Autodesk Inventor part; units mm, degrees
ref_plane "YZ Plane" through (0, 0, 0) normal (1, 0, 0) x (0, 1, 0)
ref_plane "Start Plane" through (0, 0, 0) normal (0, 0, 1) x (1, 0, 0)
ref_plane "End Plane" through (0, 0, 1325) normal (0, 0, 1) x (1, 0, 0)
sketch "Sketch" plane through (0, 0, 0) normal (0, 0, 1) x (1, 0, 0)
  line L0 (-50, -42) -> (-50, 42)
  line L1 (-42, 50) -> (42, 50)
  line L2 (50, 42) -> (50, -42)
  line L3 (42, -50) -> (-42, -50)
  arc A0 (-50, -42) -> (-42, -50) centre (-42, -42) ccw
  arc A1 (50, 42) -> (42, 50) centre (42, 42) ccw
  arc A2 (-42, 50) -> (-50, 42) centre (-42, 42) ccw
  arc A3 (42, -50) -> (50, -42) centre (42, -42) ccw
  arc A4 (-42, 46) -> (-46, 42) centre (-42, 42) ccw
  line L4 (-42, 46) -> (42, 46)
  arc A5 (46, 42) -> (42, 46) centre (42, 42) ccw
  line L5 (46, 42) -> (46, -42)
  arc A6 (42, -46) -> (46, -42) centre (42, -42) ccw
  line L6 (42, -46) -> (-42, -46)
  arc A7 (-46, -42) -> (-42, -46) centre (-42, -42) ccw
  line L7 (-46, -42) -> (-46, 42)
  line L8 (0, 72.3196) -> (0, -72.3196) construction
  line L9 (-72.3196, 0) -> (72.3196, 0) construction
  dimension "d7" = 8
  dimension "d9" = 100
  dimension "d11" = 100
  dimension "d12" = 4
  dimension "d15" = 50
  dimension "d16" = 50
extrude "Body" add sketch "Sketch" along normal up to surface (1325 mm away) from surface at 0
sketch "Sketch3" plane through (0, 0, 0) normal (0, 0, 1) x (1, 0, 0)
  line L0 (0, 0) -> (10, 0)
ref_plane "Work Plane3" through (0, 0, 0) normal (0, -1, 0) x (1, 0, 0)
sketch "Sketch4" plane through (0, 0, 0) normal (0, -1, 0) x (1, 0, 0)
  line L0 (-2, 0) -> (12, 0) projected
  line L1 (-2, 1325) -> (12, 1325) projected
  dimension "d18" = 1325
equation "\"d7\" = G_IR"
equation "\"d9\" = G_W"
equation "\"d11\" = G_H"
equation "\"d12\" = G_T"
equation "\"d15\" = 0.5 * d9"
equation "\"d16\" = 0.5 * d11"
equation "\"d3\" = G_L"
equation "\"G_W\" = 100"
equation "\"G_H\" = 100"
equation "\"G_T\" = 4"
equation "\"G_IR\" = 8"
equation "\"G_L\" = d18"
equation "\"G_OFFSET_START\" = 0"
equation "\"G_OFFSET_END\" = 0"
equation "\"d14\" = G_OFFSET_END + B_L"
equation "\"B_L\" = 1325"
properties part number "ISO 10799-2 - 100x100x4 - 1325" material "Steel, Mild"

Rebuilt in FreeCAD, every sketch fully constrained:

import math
import FreeCAD as App
import Part
import Sketcher
from FreeCAD import Vector
Q = App.Units.Quantity

doc = App.newDocument("Part")
body = doc.addObject("PartDesign::Body", "Body")

# Sketch on XY plane
sketch1 = doc.addObject("Sketcher::SketchObject", "Sketch")
body.addObject(sketch1)
sketch1.AttachmentSupport = (doc.XY_Plane, [""])
sketch1.MapMode = "FlatFace"
sketch1.addGeometry([
    Part.LineSegment(Vector(-50, 42, 0), Vector(-50, -42, 0)),  # 0
    Part.ArcOfCircle(Part.Circle(Vector(-42, -42, 0), Vector(0, 0, 1), 8), math.radians(180), math.radians(270)),  # 1
    Part.LineSegment(Vector(-42, -50, 0), Vector(42, -50, 0)),  # 2
    Part.ArcOfCircle(Part.Circle(Vector(42, -42, 0), Vector(0, 0, 1), 8), math.radians(-90), math.radians(0)),  # 3
    Part.LineSegment(Vector(50, -42, 0), Vector(50, 42, 0)),  # 4
    Part.ArcOfCircle(Part.Circle(Vector(42, 42, 0), Vector(0, 0, 1), 8), math.radians(0), math.radians(90)),  # 5
    Part.LineSegment(Vector(42, 50, 0), Vector(-42, 50, 0)),  # 6
    Part.ArcOfCircle(Part.Circle(Vector(-42, 42, 0), Vector(0, 0, 1), 8), math.radians(90), math.radians(180)),  # 7
    Part.ArcOfCircle(Part.Circle(Vector(-42, 42, 0), Vector(0, 0, 1), 4), math.radians(90), math.radians(180)),  # 8
    Part.LineSegment(Vector(-42, 46, 0), Vector(42, 46, 0)),  # 9
    Part.ArcOfCircle(Part.Circle(Vector(42, 42, 0), Vector(0, 0, 1), 4), math.radians(0), math.radians(90)),  # 10
    Part.LineSegment(Vector(46, 42, 0), Vector(46, -42, 0)),  # 11
    Part.ArcOfCircle(Part.Circle(Vector(42, -42, 0), Vector(0, 0, 1), 4), math.radians(-90), math.radians(0)),  # 12
    Part.LineSegment(Vector(42, -46, 0), Vector(-42, -46, 0)),  # 13
    Part.ArcOfCircle(Part.Circle(Vector(-42, -42, 0), Vector(0, 0, 1), 4), math.radians(180), math.radians(270)),  # 14
    Part.LineSegment(Vector(-46, -42, 0), Vector(-46, 42, 0)),  # 15
], False)
sketch1.addConstraint([
    Sketcher.Constraint("Tangent", 0, 2, 1, 1),
    Sketcher.Constraint("Tangent", 1, 2, 2, 1),
    Sketcher.Constraint("Tangent", 2, 2, 3, 1),
    Sketcher.Constraint("Tangent", 3, 2, 4, 1),
    Sketcher.Constraint("Tangent", 4, 2, 5, 1),
    Sketcher.Constraint("Tangent", 5, 2, 6, 1),
    Sketcher.Constraint("Tangent", 6, 2, 7, 1),
    Sketcher.Constraint("Tangent", 7, 2, 0, 1),
    Sketcher.Constraint("Tangent", 8, 1, 9, 1),
    Sketcher.Constraint("Tangent", 9, 2, 10, 2),
    Sketcher.Constraint("Tangent", 10, 1, 11, 1),
    Sketcher.Constraint("Tangent", 11, 2, 12, 2),
    Sketcher.Constraint("Tangent", 12, 1, 13, 1),
    Sketcher.Constraint("Tangent", 13, 2, 14, 2),
    Sketcher.Constraint("Tangent", 14, 1, 15, 1),
    Sketcher.Constraint("Tangent", 15, 2, 8, 2),
    Sketcher.Constraint("Vertical", 0),
    Sketcher.Constraint("Horizontal", 2),
    Sketcher.Constraint("Vertical", 4),
    Sketcher.Constraint("Horizontal", 6),
    Sketcher.Constraint("Horizontal", 9),
    Sketcher.Constraint("Vertical", 11),
    Sketcher.Constraint("Horizontal", 13),
    Sketcher.Constraint("Vertical", 15),
    Sketcher.Constraint("Coincident", 8, 3, 7, 3),
    Sketcher.Constraint("Coincident", 10, 3, 5, 3),
    Sketcher.Constraint("Coincident", 12, 3, 3, 3),
    Sketcher.Constraint("Equal", 1, 3),
    Sketcher.Constraint("Equal", 3, 5),
    Sketcher.Constraint("Equal", 5, 7),
    Sketcher.Constraint("Equal", 12, 14),
    Sketcher.Constraint("Symmetric", 1, 3, 5, 3, -1, 1),
    Sketcher.Constraint("Equal", 13, 0),
    Sketcher.Constraint("Radius", 1, Q("8 mm")),
    Sketcher.Constraint("Radius", 8, Q("4 mm")),
    Sketcher.Constraint("DistanceX", 0, 2, -1, 1, Q("50 mm")),
])
pad1 = doc.addObject("PartDesign::Pad", "Pad")
body.addObject(pad1)
pad1.Profile = sketch1
pad1.Length = 1325

doc.recompute()
